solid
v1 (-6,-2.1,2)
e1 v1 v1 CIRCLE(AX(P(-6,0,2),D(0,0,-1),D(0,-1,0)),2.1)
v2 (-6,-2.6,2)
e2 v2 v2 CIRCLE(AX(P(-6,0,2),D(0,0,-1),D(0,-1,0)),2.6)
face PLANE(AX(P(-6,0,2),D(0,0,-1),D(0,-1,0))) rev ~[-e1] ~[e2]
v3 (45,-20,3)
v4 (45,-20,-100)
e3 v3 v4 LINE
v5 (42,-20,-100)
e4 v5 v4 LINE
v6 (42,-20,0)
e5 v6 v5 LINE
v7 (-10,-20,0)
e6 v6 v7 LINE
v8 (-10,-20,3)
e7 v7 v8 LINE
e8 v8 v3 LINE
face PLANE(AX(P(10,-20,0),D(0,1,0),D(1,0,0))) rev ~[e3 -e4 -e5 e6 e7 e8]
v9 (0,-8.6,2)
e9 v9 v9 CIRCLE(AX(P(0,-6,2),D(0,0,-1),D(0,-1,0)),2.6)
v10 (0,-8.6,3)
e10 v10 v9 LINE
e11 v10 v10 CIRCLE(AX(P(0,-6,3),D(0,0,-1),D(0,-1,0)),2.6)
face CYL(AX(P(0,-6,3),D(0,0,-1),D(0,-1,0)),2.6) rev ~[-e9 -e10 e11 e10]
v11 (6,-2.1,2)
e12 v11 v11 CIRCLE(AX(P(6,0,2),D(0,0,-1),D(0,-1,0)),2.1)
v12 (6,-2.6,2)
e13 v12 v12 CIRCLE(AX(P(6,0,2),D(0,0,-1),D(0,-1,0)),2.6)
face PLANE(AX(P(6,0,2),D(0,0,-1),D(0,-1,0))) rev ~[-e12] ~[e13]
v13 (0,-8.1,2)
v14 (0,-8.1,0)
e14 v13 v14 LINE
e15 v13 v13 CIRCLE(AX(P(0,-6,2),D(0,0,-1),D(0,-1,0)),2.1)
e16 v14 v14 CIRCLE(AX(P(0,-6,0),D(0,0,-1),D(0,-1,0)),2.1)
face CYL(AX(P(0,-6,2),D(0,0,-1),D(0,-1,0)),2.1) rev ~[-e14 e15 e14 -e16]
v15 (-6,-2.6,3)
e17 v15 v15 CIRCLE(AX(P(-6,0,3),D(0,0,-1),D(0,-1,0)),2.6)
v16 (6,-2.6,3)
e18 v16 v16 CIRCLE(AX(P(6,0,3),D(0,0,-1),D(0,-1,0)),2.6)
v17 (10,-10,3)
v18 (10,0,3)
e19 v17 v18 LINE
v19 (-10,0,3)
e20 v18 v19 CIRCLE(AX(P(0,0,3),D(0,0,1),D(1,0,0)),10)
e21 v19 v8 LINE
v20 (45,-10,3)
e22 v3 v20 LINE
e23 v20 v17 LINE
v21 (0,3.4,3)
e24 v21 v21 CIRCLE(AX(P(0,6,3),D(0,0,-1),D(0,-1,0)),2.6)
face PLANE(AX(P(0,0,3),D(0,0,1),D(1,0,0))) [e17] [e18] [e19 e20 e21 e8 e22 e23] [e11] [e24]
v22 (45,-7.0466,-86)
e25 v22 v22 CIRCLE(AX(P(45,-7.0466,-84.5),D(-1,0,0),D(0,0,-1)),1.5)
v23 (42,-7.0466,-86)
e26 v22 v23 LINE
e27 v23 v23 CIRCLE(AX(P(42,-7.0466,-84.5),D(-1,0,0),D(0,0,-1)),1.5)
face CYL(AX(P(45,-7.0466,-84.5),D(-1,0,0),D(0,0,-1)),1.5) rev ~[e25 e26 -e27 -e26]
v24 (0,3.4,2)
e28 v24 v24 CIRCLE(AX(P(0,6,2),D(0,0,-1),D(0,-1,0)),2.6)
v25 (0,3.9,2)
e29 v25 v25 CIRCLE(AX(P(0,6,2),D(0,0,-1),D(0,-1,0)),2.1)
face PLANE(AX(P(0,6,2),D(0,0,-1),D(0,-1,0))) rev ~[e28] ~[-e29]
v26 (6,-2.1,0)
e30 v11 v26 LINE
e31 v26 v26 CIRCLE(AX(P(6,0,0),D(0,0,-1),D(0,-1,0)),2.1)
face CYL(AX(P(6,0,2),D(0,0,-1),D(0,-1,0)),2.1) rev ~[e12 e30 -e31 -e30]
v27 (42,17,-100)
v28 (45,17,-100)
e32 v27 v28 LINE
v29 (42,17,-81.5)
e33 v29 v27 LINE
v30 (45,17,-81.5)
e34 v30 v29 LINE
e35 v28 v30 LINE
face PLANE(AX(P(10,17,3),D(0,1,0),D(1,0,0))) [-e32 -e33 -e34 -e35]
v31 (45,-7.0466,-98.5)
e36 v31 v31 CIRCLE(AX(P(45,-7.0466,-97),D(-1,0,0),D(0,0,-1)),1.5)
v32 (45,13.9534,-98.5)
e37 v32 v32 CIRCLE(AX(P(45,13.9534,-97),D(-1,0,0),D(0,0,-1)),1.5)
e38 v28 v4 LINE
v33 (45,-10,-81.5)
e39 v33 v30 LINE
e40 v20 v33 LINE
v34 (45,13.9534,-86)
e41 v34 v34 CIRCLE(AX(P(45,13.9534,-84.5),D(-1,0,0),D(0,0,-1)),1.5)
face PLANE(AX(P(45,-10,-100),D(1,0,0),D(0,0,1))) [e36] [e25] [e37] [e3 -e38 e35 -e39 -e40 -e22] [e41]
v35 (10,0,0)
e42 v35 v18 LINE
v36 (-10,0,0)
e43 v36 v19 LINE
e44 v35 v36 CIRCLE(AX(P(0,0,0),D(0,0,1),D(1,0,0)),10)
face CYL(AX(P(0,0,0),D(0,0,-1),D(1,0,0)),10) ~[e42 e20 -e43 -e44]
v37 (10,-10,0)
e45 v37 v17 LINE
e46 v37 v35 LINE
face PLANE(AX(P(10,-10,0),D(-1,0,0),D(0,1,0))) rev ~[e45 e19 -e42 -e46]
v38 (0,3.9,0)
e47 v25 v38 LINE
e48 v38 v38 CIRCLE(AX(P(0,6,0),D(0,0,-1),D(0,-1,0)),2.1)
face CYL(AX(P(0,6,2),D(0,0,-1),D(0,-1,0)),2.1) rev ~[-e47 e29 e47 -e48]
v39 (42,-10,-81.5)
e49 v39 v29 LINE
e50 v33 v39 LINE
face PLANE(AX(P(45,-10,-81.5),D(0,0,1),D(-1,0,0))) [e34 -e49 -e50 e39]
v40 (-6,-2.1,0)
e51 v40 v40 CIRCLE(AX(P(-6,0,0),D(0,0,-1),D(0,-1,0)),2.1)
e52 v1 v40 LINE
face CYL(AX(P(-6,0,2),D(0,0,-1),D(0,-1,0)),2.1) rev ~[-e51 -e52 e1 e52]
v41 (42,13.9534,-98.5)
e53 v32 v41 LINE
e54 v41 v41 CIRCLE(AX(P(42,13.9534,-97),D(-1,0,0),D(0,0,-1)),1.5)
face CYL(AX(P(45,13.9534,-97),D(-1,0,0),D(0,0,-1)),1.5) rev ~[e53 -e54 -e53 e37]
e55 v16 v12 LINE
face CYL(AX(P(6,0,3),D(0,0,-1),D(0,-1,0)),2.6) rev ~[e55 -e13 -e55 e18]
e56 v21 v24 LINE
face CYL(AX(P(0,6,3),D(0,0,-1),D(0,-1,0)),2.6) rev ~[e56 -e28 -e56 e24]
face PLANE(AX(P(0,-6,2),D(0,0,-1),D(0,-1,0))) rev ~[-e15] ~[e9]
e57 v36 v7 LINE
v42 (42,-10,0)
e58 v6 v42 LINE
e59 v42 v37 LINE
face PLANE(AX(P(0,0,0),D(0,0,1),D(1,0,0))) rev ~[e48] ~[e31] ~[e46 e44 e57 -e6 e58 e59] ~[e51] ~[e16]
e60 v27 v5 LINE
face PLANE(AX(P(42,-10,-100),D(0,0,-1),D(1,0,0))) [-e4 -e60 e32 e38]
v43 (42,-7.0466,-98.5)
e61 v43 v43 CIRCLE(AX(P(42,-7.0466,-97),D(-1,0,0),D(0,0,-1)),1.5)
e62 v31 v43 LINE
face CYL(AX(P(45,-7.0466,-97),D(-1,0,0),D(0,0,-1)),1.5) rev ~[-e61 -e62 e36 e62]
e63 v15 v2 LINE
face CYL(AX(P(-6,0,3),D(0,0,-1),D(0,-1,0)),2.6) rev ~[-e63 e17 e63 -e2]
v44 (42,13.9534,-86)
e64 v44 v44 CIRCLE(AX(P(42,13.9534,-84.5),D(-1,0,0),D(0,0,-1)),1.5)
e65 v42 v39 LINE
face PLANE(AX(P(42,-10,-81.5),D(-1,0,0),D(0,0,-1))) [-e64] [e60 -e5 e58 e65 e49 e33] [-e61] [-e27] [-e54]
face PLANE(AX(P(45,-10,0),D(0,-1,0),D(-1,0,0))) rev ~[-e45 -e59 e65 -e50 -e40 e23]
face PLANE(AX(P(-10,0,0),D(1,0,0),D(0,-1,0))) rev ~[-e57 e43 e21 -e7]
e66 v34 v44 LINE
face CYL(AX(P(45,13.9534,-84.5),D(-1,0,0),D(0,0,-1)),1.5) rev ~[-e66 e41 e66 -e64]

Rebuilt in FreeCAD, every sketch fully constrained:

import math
import FreeCAD as App
import Part
import Sketcher
from FreeCAD import Vector

doc = App.newDocument("Part")
body = doc.addObject("PartDesign::Body", "Body")

sketch1 = body.newObject("Sketcher::SketchObject", "Sketch")
sketch1.AttachmentSupport = (doc.getObject("XY_Plane"), [""])
sketch1.MapMode = "FlatFace"
sketch1.addGeometry([
    Part.LineSegment(Vector(10, -10, 0), Vector(10, 0, 0)),
    Part.ArcOfCircle(Part.Circle(Vector(0, 0, 0), Vector(0, 0, 1), 10), math.radians(0), math.radians(180)),
    Part.LineSegment(Vector(-10, 0, 0), Vector(-10, -20, 0)),
    Part.LineSegment(Vector(-10, -20, 0), Vector(45, -20, 0)),
    Part.LineSegment(Vector(45, -20, 0), Vector(45, -10, 0)),
    Part.LineSegment(Vector(45, -10, 0), Vector(10, -10, 0)),
], False)
sketch1.addConstraint([
    Sketcher.Constraint("Tangent", 0, 2, 1, 1),
    Sketcher.Constraint("Tangent", 1, 2, 2, 1),
    Sketcher.Constraint("Coincident", 2, 2, 3, 1),
    Sketcher.Constraint("Coincident", 3, 2, 4, 1),
    Sketcher.Constraint("Coincident", 4, 2, 5, 1),
    Sketcher.Constraint("Coincident", 5, 2, 0, 1),
    Sketcher.Constraint("Vertical", 0),
    Sketcher.Constraint("Vertical", 2),
    Sketcher.Constraint("Horizontal", 3),
    Sketcher.Constraint("Vertical", 4),
    Sketcher.Constraint("Horizontal", 5),
    Sketcher.Constraint("Coincident", 1, 3, -1, 1),
    Sketcher.Constraint("Equal", 0, 4),
    Sketcher.Constraint("Radius", 1, 10.0),
    Sketcher.Constraint("DistanceX", 5, 2, 5, 1, 35.0),
    Sketcher.Constraint("DistanceY", 0, 1, 0, 2, 10.0),
])
pad1 = body.newObject("PartDesign::Pad", "Pad")
pad1.Profile = sketch1
pad1.Length = 3

sketch2 = body.newObject("Sketcher::SketchObject", "Sketch001")
sketch2.AttachmentSupport = (doc.getObject("XY_Plane"), [""])
sketch2.MapMode = "FlatFace"
sketch2.addGeometry([
    Part.LineSegment(Vector(45, -20, 0), Vector(42, -20, 0)),
    Part.LineSegment(Vector(42, -20, 0), Vector(42, -10, 0)),
    Part.LineSegment(Vector(42, -10, 0), Vector(45, -10, 0)),
    Part.LineSegment(Vector(45, -10, 0), Vector(45, -20, 0)),
], False)
sketch2.addConstraint([
    Sketcher.Constraint("Coincident", 0, 2, 1, 1),
    Sketcher.Constraint("Coincident", 1, 2, 2, 1),
    Sketcher.Constraint("Coincident", 2, 2, 3, 1),
    Sketcher.Constraint("Coincident", 3, 2, 0, 1),
    Sketcher.Constraint("Horizontal", 0),
    Sketcher.Constraint("Vertical", 1),
    Sketcher.Constraint("Horizontal", 2),
    Sketcher.Constraint("Vertical", 3),
    Sketcher.Constraint("DistanceX", 0, 2, 0, 1, 3.0),
    Sketcher.Constraint("DistanceY", 1, 1, 1, 2, 10.0),
    Sketcher.Constraint("DistanceX", -1, 1, 0, 2, 42.0),
    Sketcher.Constraint("DistanceY", 0, 2, -1, 1, 20.0),
])
pad2 = body.newObject("PartDesign::Pad", "Pad001")
pad2.Profile = sketch2
pad2.Length = 100
pad2.Reversed = True

sketch3 = body.newObject("Sketcher::SketchObject", "Sketch002")
sketch3.AttachmentSupport = (doc.getObject("XZ_Plane"), [""])
sketch3.MapMode = "FlatFace"
sketch3.AttachmentOffset = App.Placement(Vector(0, 0, 10), App.Rotation())
sketch3.addGeometry([
    Part.LineSegment(Vector(42, -100, 0), Vector(42, -81.5, 0)),
    Part.LineSegment(Vector(42, -81.5, 0), Vector(45, -81.5, 0)),
    Part.LineSegment(Vector(45, -81.5, 0), Vector(45, -100, 0)),
    Part.LineSegment(Vector(45, -100, 0), Vector(42, -100, 0)),
], False)
sketch3.addConstraint([
    Sketcher.Constraint("Coincident", 0, 2, 1, 1),
    Sketcher.Constraint("Coincident", 1, 2, 2, 1),
    Sketcher.Constraint("Coincident", 2, 2, 3, 1),
    Sketcher.Constraint("Coincident", 3, 2, 0, 1),
    Sketcher.Constraint("Vertical", 0),
    Sketcher.Constraint("Horizontal", 1),
    Sketcher.Constraint("Vertical", 2),
    Sketcher.Constraint("Horizontal", 3),
    Sketcher.Constraint("DistanceX", 1, 1, 1, 2, 3.0),
    Sketcher.Constraint("DistanceY", 0, 1, 0, 2, 18.5),
    Sketcher.Constraint("DistanceX", -1, 1, 0, 2, 42.0),
    Sketcher.Constraint("DistanceY", 2, 2, -1, 1, 100.0),
])
pad3 = body.newObject("PartDesign::Pad", "Pad002")
pad3.Profile = sketch3
pad3.Length = 27
pad3.Reversed = True

sketch4 = body.newObject("Sketcher::SketchObject", "Sketch003")
sketch4.AttachmentSupport = (doc.getObject("XY_Plane"), [""])
sketch4.MapMode = "FlatFace"
sketch4.AttachmentOffset = App.Placement(Vector(0, 0, 3), App.Rotation())
sketch4.addGeometry([
    Part.Circle(Vector(0, 6, 0), Vector(0, 0, 1), 2.1),
    Part.Circle(Vector(0, -6, 0), Vector(0, 0, 1), 2.1),
    Part.Circle(Vector(6, 0, 0), Vector(0, 0, 1), 2.1),
    Part.Circle(Vector(-6, 0, 0), Vector(0, 0, 1), 2.1),
], False)
sketch4.addConstraint([
    Sketcher.Constraint("Equal", 0, 1),
    Sketcher.Constraint("Equal", 1, 2),
    Sketcher.Constraint("Equal", 2, 3),
    Sketcher.Constraint("Symmetric", 0, 3, 1, 3, -1, 1),
    Sketcher.Constraint("Symmetric", 2, 3, 3, 3, -1, 1),
    Sketcher.Constraint("PointOnObject", 0, 3, -2),
    Sketcher.Constraint("PointOnObject", 2, 3, -1),
    Sketcher.Constraint("Diameter", 0, 4.2),
    Sketcher.Constraint("DistanceY", -1, 1, 0, 3, 6.0),
    Sketcher.Constraint("DistanceX", -1, 1, 2, 3, 6.0),
])
doc.recompute()
hole = body.newObject("PartDesign::Hole", "Hole")
hole.Profile = sketch4
hole.ThreadType = "None"
hole.Diameter = 4.2
hole.DepthType = "ThroughAll"
hole.HoleCutType = "Counterbore"
hole.HoleCutDiameter = 5.2
hole.HoleCutDepth = 1

sketch5 = body.newObject("Sketcher::SketchObject", "Sketch004")
sketch5.AttachmentSupport = (doc.getObject("YZ_Plane"), [""])
sketch5.MapMode = "FlatFace"
sketch5.AttachmentOffset = App.Placement(Vector(0, 0, 45), App.Rotation())
sketch5.addGeometry([
    Part.Circle(Vector(-7, -97, 0), Vector(0, 0, 1), 1.5),
    Part.Circle(Vector(14, -97, 0), Vector(0, 0, 1), 1.5),
    Part.Circle(Vector(-7, -84.5, 0), Vector(0, 0, 1), 1.5),
    Part.Circle(Vector(14, -84.5, 0), Vector(0, 0, 1), 1.5),
], False)
sketch5.addConstraint([
    Sketcher.Constraint("Equal", 0, 1),
    Sketcher.Constraint("Equal", 1, 2),
    Sketcher.Constraint("Equal", 2, 3),
    Sketcher.Constraint("Horizontal", 0, 3, 1, 3),
    Sketcher.Constraint("Horizontal", 2, 3, 3, 3),
    Sketcher.Constraint("Vertical", 0, 3, 2, 3),
    Sketcher.Constraint("Vertical", 1, 3, 3, 3),
    Sketcher.Constraint("Diameter", 0, 3.0),
    Sketcher.Constraint("DistanceY", 0, 3, -1, 1, 97.0),
    Sketcher.Constraint("DistanceX", 0, 3, 1, 3, 21.0),
    Sketcher.Constraint("DistanceY", 2, 3, -1, 1, 84.5),
    Sketcher.Constraint("DistanceX", 0, 3, -1, 1, 7.0466),
])
doc.recompute()
hole2 = body.newObject("PartDesign::Hole", "Hole001")
hole2.Profile = sketch5
hole2.ThreadType = "None"
hole2.Diameter = 3
hole2.DepthType = "ThroughAll"

doc.recompute()
